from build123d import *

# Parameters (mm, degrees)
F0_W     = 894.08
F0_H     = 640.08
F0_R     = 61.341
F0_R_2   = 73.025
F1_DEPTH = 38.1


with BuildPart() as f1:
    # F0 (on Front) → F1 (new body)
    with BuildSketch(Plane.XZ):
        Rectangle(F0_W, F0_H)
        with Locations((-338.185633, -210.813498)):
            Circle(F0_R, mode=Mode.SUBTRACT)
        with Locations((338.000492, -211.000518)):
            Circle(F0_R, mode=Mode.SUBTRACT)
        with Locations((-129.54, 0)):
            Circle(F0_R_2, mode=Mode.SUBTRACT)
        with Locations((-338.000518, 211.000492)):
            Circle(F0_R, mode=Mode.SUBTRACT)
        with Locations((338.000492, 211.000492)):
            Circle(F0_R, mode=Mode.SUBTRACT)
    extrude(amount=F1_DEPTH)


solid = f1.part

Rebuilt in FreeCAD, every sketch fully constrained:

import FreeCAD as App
import Part
import Sketcher

V = App.Vector
Q = App.Units.Quantity


def add_polygon(sketch, points):
    """Adds a closed chain of lines whose ends are joined by coincident constraints."""
    first, n = sketch.GeometryCount, len(points)
    for a, b in zip(points, points[1:] + points[:1]):
        sketch.addGeometry(Part.LineSegment(App.Vector(*a, 0), App.Vector(*b, 0)), False)
    for i in range(n):
        sketch.addConstraint(Sketcher.Constraint("Coincident", first + i, 2, first + (i + 1) % n, 1))

doc = App.newDocument("Part")
body = doc.addObject("PartDesign::Body", "Body")

# Sketch on XZ plane
sketch1 = doc.addObject("Sketcher::SketchObject", "Sketch")
body.addObject(sketch1)
sketch1.AttachmentSupport = (doc.XZ_Plane, [""])
sketch1.MapMode = "FlatFace"
add_polygon(sketch1, [(-447, 320), (-447, -320), (447, -320), (447, 320)])  # lines 0-3
sketch1.addGeometry(Part.Circle(V(-338, -211, 0), V(0, 0, 1), 61), False)  # 4
sketch1.addGeometry(Part.Circle(V(338, -211, 0), V(0, 0, 1), 61), False)  # 5
sketch1.addGeometry(Part.Circle(V(-130, 0, 0), V(0, 0, 1), 73), False)  # 6
sketch1.addGeometry(Part.Circle(V(-338, 211, 0), V(0, 0, 1), 61), False)  # 7
sketch1.addGeometry(Part.Circle(V(338, 211, 0), V(0, 0, 1), 61), False)  # 8
sketch1.addConstraint([
    Sketcher.Constraint("Vertical", 0),
    Sketcher.Constraint("Horizontal", 1),
    Sketcher.Constraint("Vertical", 2),
    Sketcher.Constraint("Horizontal", 3),
    Sketcher.Constraint("Equal", 4, 5),
    Sketcher.Constraint("Equal", 5, 7),
    Sketcher.Constraint("Equal", 7, 8),
    Sketcher.Constraint("Symmetric", 0, 2, 2, 2, -1, 1),
    Sketcher.Constraint("PointOnObject", 6, 3, -1),
    Sketcher.Constraint("Horizontal", 7, 3, 8, 3),
    Sketcher.Constraint("Vertical", 5, 3, 8, 3),
    Sketcher.Constraint("Diameter", 4, Q("4.83 in")),
    Sketcher.Constraint("Diameter", 6, Q("5.75 in")),
    Sketcher.Constraint("DistanceX", 1, 1, 1, 2, Q("35.2 in")),
    Sketcher.Constraint("DistanceY", 0, 2, 0, 1, Q("25.2 in")),
    Sketcher.Constraint("DistanceX", 6, 3, -1, 1, Q("5.1 in")),
    Sketcher.Constraint("DistanceY", 4, 3, -1, 1, Q("210.813498 mm")),
    Sketcher.Constraint("DistanceX", -1, 1, 5, 3, Q("338.000492 mm")),
    Sketcher.Constraint("DistanceY", 5, 3, -1, 1, Q("211.000518 mm")),
    Sketcher.Constraint("DistanceX", 7, 3, -1, 1, Q("338.000518 mm")),
    Sketcher.Constraint("DistanceY", -1, 1, 7, 3, Q("211.000492 mm")),
    Sketcher.Constraint("DistanceX", 4, 3, -1, 1, Q("338.185633 mm")),
])
pad1 = doc.addObject("PartDesign::Pad", "Pad")
body.addObject(pad1)
pad1.Profile = sketch1
pad1.Length = Q("1.5 in")

doc.recompute()
